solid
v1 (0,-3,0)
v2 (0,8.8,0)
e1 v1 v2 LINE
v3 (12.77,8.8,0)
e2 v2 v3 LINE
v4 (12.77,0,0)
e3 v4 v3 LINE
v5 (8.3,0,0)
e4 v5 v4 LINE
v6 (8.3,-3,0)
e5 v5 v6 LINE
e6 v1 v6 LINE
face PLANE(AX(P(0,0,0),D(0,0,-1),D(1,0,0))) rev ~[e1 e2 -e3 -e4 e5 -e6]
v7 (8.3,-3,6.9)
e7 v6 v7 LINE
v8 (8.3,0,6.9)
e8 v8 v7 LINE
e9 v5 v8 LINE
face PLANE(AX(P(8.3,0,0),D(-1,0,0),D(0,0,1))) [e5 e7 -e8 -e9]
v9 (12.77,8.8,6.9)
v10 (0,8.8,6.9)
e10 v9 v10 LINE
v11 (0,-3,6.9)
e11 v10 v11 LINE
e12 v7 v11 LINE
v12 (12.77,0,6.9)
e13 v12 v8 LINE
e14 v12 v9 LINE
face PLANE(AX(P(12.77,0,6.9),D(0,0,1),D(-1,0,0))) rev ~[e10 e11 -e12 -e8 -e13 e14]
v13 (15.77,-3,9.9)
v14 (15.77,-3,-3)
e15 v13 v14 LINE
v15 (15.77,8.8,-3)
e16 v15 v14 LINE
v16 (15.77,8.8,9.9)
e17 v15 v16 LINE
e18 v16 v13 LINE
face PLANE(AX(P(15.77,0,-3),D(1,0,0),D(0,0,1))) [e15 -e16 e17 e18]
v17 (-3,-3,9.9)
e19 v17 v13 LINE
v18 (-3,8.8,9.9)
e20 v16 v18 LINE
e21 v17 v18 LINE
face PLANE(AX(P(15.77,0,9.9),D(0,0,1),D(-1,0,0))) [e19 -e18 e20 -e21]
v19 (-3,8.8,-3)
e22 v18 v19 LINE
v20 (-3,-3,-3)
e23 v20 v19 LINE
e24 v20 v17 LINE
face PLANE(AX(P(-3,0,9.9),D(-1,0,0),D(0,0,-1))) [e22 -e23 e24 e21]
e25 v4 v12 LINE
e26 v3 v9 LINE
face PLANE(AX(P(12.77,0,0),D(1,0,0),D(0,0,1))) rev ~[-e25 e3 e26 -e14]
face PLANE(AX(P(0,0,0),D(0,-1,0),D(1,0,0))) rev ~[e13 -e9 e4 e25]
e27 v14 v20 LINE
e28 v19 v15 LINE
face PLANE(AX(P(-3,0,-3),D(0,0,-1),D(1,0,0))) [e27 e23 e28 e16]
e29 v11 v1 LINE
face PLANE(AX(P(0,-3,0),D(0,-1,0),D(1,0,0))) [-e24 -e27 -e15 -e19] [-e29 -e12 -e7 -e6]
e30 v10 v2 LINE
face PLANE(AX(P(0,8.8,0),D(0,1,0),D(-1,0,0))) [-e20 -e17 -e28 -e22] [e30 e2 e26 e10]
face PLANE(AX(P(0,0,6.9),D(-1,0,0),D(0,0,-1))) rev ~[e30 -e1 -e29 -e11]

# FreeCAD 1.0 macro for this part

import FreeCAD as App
import Part
import Sketcher

doc = App.newDocument("Part")
body = doc.addObject("PartDesign::Body", "Body")

sketch1 = body.newObject("Sketcher::SketchObject", "Sketch")
sketch1.AttachmentSupport = (doc.getObject("XZ_Plane"), [""])
sketch1.MapMode = "FlatFace"
sketch1.addGeometry(Part.LineSegment(App.Vector(16, -3, 0), App.Vector(-3, -3, 0)), False)
sketch1.addGeometry(Part.LineSegment(App.Vector(-3, -3, 0), App.Vector(-3, 10, 0)), False)
sketch1.addGeometry(Part.LineSegment(App.Vector(-3, 10, 0), App.Vector(16, 10, 0)), False)
sketch1.addGeometry(Part.LineSegment(App.Vector(16, 10, 0), App.Vector(16, -3, 0)), False)
sketch1.addGeometry(Part.LineSegment(App.Vector(0, 7, 0), App.Vector(0, 0, 0)), False)
sketch1.addGeometry(Part.LineSegment(App.Vector(0, 0, 0), App.Vector(13, 0, 0)), False)
sketch1.addGeometry(Part.LineSegment(App.Vector(13, 0, 0), App.Vector(13, 7, 0)), False)
sketch1.addGeometry(Part.LineSegment(App.Vector(13, 7, 0), App.Vector(0, 7, 0)), False)
sketch1.addConstraint(Sketcher.Constraint("Coincident", 0, 2, 1, 1))
sketch1.addConstraint(Sketcher.Constraint("Coincident", 1, 2, 2, 1))
sketch1.addConstraint(Sketcher.Constraint("Coincident", 2, 2, 3, 1))
sketch1.addConstraint(Sketcher.Constraint("Coincident", 3, 2, 0, 1))
sketch1.addConstraint(Sketcher.Constraint("Coincident", 4, 2, 5, 1))
sketch1.addConstraint(Sketcher.Constraint("Coincident", 5, 2, 6, 1))
sketch1.addConstraint(Sketcher.Constraint("Coincident", 6, 2, 7, 1))
sketch1.addConstraint(Sketcher.Constraint("Coincident", 7, 2, 4, 1))
sketch1.addConstraint(Sketcher.Constraint("Horizontal", 0))
sketch1.addConstraint(Sketcher.Constraint("Vertical", 1))
sketch1.addConstraint(Sketcher.Constraint("Horizontal", 2))
sketch1.addConstraint(Sketcher.Constraint("Vertical", 3))
sketch1.addConstraint(Sketcher.Constraint("Vertical", 4))
sketch1.addConstraint(Sketcher.Constraint("Horizontal", 5))
sketch1.addConstraint(Sketcher.Constraint("Vertical", 6))
sketch1.addConstraint(Sketcher.Constraint("Horizontal", 7))
sketch1.addConstraint(Sketcher.Constraint("Coincident", 4, 2, -1, 1))
sketch1.addConstraint(Sketcher.Constraint("DistanceY", 4, 2, 4, 1, 6.9))
sketch1.addConstraint(Sketcher.Constraint("DistanceX", 0, 2, -1, 1, 3.0))
sketch1.addConstraint(Sketcher.Constraint("DistanceY", 0, 2, -1, 1, 3.0))
sketch1.addConstraint(Sketcher.Constraint("DistanceX", 5, 2, 3, 2, 3.0))
sketch1.addConstraint(Sketcher.Constraint("DistanceY", 6, 2, 2, 2, 3.0))
sketch1.addConstraint(Sketcher.Constraint("DistanceX", 5, 1, 5, 2, 12.77))
pad1 = body.newObject("PartDesign::Pad", "Pad")
pad1.Profile = sketch1
pad1.Length = 8.8
pad1.Reversed = True

sketch2 = body.newObject("Sketcher::SketchObject", "Sketch001")
sketch2.AttachmentSupport = (doc.getObject("XZ_Plane"), [""])
sketch2.MapMode = "FlatFace"
sketch2.addGeometry(Part.LineSegment(App.Vector(16, 10, 0), App.Vector(-3, 10, 0)), False)
sketch2.addGeometry(Part.LineSegment(App.Vector(-3, 10, 0), App.Vector(-3, -3, 0)), False)
sketch2.addGeometry(Part.LineSegment(App.Vector(-3, -3, 0), App.Vector(16, -3, 0)), False)
sketch2.addGeometry(Part.LineSegment(App.Vector(16, -3, 0), App.Vector(16, 10, 0)), False)
sketch2.addConstraint(Sketcher.Constraint("Coincident", 0, 2, 1, 1))
sketch2.addConstraint(Sketcher.Constraint("Coincident", 1, 2, 2, 1))
sketch2.addConstraint(Sketcher.Constraint("Coincident", 2, 2, 3, 1))
sketch2.addConstraint(Sketcher.Constraint("Coincident", 3, 2, 0, 1))
sketch2.addConstraint(Sketcher.Constraint("Horizontal", 0))
sketch2.addConstraint(Sketcher.Constraint("Vertical", 1))
sketch2.addConstraint(Sketcher.Constraint("Horizontal", 2))
sketch2.addConstraint(Sketcher.Constraint("Vertical", 3))
sketch2.addConstraint(Sketcher.Constraint("DistanceY", 1, 2, 1, 1, 12.9))
sketch2.addConstraint(Sketcher.Constraint("DistanceX", 0, 2, -1, 1, 3.0))
sketch2.addConstraint(Sketcher.Constraint("DistanceY", 1, 2, -1, 1, 3.0))
sketch2.addConstraint(Sketcher.Constraint("DistanceX", 0, 2, 0, 1, 18.77))
pad2 = body.newObject("PartDesign::Pad", "Pad001")
pad2.Profile = sketch2
pad2.Length = 3

sketch3 = body.newObject("Sketcher::SketchObject", "Sketch002")
sketch3.AttachmentSupport = (doc.getObject("XZ_Plane"), [""])
sketch3.MapMode = "FlatFace"
sketch3.addGeometry(Part.LineSegment(App.Vector(0, 0, 0), App.Vector(0, 7, 0)), False)
sketch3.addGeometry(Part.LineSegment(App.Vector(0, 7, 0), App.Vector(8, 7, 0)), False)
sketch3.addGeometry(Part.LineSegment(App.Vector(8, 7, 0), App.Vector(8, 0, 0)), False)
sketch3.addGeometry(Part.LineSegment(App.Vector(8, 0, 0), App.Vector(0, 0, 0)), False)
sketch3.addConstraint(Sketcher.Constraint("Coincident", 0, 2, 1, 1))
sketch3.addConstraint(Sketcher.Constraint("Coincident", 1, 2, 2, 1))
sketch3.addConstraint(Sketcher.Constraint("Coincident", 2, 2, 3, 1))
sketch3.addConstraint(Sketcher.Constraint("Coincident", 3, 2, 0, 1))
sketch3.addConstraint(Sketcher.Constraint("Vertical", 0))
sketch3.addConstraint(Sketcher.Constraint("Horizontal", 1))
sketch3.addConstraint(Sketcher.Constraint("Vertical", 2))
sketch3.addConstraint(Sketcher.Constraint("Horizontal", 3))
sketch3.addConstraint(Sketcher.Constraint("Coincident", 3, 2, -1, 1))
sketch3.addConstraint(Sketcher.Constraint("DistanceX", 1, 1, 1, 2, 8.3))
sketch3.addConstraint(Sketcher.Constraint("DistanceY", 0, 1, 0, 2, 6.9))
pocket1 = body.newObject("PartDesign::Pocket", "Pocket")
pocket1.Profile = sketch3
pocket1.Length = 3
pocket1.Reversed = True

doc.recompute()
